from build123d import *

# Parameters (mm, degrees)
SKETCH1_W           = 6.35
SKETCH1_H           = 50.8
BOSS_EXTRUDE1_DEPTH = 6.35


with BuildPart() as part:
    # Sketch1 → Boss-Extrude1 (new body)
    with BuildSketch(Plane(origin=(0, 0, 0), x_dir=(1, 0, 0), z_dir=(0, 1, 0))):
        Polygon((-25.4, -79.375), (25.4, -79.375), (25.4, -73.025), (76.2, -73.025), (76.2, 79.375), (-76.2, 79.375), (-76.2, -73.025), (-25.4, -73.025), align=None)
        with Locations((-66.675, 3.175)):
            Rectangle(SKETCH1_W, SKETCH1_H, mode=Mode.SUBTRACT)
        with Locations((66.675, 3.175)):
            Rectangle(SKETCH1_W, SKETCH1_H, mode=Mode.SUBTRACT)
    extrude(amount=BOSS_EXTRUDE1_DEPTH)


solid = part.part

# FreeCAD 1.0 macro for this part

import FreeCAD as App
import Part
import Sketcher
Q = App.Units.Quantity

doc = App.newDocument("Part")
body = doc.addObject("PartDesign::Body", "Body")

# Sketch on XZ plane
sketch1 = doc.addObject("Sketcher::SketchObject", "Sketch")
body.addObject(sketch1)
sketch1.AttachmentSupport = (doc.XZ_Plane, [""])
sketch1.MapMode = "FlatFace"
sketch1.addGeometry([
    Part.LineSegment(App.Vector(-25, 79, 0), App.Vector(25, 79, 0)),  # 0
    Part.LineSegment(App.Vector(25, 79, 0), App.Vector(25, 73, 0)),  # 1
    Part.LineSegment(App.Vector(25, 73, 0), App.Vector(76, 73, 0)),  # 2
    Part.LineSegment(App.Vector(76, 73, 0), App.Vector(76, -79, 0)),  # 3
    Part.LineSegment(App.Vector(76, -79, 0), App.Vector(-76, -79, 0)),  # 4
    Part.LineSegment(App.Vector(-76, -79, 0), App.Vector(-76, 73, 0)),  # 5
    Part.LineSegment(App.Vector(-76, 73, 0), App.Vector(-25, 73, 0)),  # 6
    Part.LineSegment(App.Vector(-25, 73, 0), App.Vector(-25, 79, 0)),  # 7
    Part.LineSegment(App.Vector(-64, 22, 0), App.Vector(-70, 22, 0)),  # 8
    Part.LineSegment(App.Vector(-70, 22, 0), App.Vector(-70, -29, 0)),  # 9
    Part.LineSegment(App.Vector(-70, -29, 0), App.Vector(-64, -29, 0)),  # 10
    Part.LineSegment(App.Vector(-64, -29, 0), App.Vector(-64, 22, 0)),  # 11
    Part.LineSegment(App.Vector(70, 22, 0), App.Vector(64, 22, 0)),  # 12
    Part.LineSegment(App.Vector(64, 22, 0), App.Vector(64, -29, 0)),  # 13
    Part.LineSegment(App.Vector(64, -29, 0), App.Vector(70, -29, 0)),  # 14
    Part.LineSegment(App.Vector(70, -29, 0), App.Vector(70, 22, 0)),  # 15
], False)
sketch1.addConstraint([
    Sketcher.Constraint("Coincident", 0, 2, 1, 1),
    Sketcher.Constraint("Coincident", 1, 2, 2, 1),
    Sketcher.Constraint("Coincident", 2, 2, 3, 1),
    Sketcher.Constraint("Coincident", 3, 2, 4, 1),
    Sketcher.Constraint("Coincident", 4, 2, 5, 1),
    Sketcher.Constraint("Coincident", 5, 2, 6, 1),
    Sketcher.Constraint("Coincident", 6, 2, 7, 1),
    Sketcher.Constraint("Coincident", 7, 2, 0, 1),
    Sketcher.Constraint("Coincident", 8, 2, 9, 1),
    Sketcher.Constraint("Coincident", 9, 2, 10, 1),
    Sketcher.Constraint("Coincident", 10, 2, 11, 1),
    Sketcher.Constraint("Coincident", 11, 2, 8, 1),
    Sketcher.Constraint("Coincident", 12, 2, 13, 1),
    Sketcher.Constraint("Coincident", 13, 2, 14, 1),
    Sketcher.Constraint("Coincident", 14, 2, 15, 1),
    Sketcher.Constraint("Coincident", 15, 2, 12, 1),
    Sketcher.Constraint("Horizontal", 0),
    Sketcher.Constraint("Vertical", 1),
    Sketcher.Constraint("Horizontal", 2),
    Sketcher.Constraint("Vertical", 3),
    Sketcher.Constraint("Horizontal", 4),
    Sketcher.Constraint("Vertical", 5),
    Sketcher.Constraint("Horizontal", 6),
    Sketcher.Constraint("Vertical", 7),
    Sketcher.Constraint("Horizontal", 8),
    Sketcher.Constraint("Vertical", 9),
    Sketcher.Constraint("Horizontal", 10),
    Sketcher.Constraint("Vertical", 11),
    Sketcher.Constraint("Horizontal", 12),
    Sketcher.Constraint("Vertical", 13),
    Sketcher.Constraint("Horizontal", 14),
    Sketcher.Constraint("Vertical", 15),
    Sketcher.Constraint("Symmetric", 2, 2, 5, 2, -2),
    Sketcher.Constraint("Symmetric", 11, 2, 12, 2, -2),
    Sketcher.Constraint("Symmetric", 9, 2, 14, 2, -2),
    Sketcher.Constraint("Equal", 0, 2),
    Sketcher.Constraint("Equal", 2, 6),
    Sketcher.Constraint("Equal", 14, 1),
    Sketcher.Constraint("Equal", 4, 3),
    Sketcher.Constraint("Equal", 6, 9),
    Sketcher.Constraint("DistanceX", 0, 1, 0, 2, Q("2 in")),
    Sketcher.Constraint("DistanceY", 8, 2, 5, 2, Q("2 in")),
    Sketcher.Constraint("DistanceX", 8, 2, 8, 1, Q("0.25 in")),
    Sketcher.Constraint("DistanceX", 10, 2, -1, 1, Q("2.5 in")),
    Sketcher.Constraint("DistanceY", -1, 1, 0, 2, Q("3.125 in")),
])
pad1 = doc.addObject("PartDesign::Pad", "Pad")
body.addObject(pad1)
pad1.Profile = sketch1
pad1.Length = Q("0.25 in")
pad1.Reversed = True

doc.recompute()
